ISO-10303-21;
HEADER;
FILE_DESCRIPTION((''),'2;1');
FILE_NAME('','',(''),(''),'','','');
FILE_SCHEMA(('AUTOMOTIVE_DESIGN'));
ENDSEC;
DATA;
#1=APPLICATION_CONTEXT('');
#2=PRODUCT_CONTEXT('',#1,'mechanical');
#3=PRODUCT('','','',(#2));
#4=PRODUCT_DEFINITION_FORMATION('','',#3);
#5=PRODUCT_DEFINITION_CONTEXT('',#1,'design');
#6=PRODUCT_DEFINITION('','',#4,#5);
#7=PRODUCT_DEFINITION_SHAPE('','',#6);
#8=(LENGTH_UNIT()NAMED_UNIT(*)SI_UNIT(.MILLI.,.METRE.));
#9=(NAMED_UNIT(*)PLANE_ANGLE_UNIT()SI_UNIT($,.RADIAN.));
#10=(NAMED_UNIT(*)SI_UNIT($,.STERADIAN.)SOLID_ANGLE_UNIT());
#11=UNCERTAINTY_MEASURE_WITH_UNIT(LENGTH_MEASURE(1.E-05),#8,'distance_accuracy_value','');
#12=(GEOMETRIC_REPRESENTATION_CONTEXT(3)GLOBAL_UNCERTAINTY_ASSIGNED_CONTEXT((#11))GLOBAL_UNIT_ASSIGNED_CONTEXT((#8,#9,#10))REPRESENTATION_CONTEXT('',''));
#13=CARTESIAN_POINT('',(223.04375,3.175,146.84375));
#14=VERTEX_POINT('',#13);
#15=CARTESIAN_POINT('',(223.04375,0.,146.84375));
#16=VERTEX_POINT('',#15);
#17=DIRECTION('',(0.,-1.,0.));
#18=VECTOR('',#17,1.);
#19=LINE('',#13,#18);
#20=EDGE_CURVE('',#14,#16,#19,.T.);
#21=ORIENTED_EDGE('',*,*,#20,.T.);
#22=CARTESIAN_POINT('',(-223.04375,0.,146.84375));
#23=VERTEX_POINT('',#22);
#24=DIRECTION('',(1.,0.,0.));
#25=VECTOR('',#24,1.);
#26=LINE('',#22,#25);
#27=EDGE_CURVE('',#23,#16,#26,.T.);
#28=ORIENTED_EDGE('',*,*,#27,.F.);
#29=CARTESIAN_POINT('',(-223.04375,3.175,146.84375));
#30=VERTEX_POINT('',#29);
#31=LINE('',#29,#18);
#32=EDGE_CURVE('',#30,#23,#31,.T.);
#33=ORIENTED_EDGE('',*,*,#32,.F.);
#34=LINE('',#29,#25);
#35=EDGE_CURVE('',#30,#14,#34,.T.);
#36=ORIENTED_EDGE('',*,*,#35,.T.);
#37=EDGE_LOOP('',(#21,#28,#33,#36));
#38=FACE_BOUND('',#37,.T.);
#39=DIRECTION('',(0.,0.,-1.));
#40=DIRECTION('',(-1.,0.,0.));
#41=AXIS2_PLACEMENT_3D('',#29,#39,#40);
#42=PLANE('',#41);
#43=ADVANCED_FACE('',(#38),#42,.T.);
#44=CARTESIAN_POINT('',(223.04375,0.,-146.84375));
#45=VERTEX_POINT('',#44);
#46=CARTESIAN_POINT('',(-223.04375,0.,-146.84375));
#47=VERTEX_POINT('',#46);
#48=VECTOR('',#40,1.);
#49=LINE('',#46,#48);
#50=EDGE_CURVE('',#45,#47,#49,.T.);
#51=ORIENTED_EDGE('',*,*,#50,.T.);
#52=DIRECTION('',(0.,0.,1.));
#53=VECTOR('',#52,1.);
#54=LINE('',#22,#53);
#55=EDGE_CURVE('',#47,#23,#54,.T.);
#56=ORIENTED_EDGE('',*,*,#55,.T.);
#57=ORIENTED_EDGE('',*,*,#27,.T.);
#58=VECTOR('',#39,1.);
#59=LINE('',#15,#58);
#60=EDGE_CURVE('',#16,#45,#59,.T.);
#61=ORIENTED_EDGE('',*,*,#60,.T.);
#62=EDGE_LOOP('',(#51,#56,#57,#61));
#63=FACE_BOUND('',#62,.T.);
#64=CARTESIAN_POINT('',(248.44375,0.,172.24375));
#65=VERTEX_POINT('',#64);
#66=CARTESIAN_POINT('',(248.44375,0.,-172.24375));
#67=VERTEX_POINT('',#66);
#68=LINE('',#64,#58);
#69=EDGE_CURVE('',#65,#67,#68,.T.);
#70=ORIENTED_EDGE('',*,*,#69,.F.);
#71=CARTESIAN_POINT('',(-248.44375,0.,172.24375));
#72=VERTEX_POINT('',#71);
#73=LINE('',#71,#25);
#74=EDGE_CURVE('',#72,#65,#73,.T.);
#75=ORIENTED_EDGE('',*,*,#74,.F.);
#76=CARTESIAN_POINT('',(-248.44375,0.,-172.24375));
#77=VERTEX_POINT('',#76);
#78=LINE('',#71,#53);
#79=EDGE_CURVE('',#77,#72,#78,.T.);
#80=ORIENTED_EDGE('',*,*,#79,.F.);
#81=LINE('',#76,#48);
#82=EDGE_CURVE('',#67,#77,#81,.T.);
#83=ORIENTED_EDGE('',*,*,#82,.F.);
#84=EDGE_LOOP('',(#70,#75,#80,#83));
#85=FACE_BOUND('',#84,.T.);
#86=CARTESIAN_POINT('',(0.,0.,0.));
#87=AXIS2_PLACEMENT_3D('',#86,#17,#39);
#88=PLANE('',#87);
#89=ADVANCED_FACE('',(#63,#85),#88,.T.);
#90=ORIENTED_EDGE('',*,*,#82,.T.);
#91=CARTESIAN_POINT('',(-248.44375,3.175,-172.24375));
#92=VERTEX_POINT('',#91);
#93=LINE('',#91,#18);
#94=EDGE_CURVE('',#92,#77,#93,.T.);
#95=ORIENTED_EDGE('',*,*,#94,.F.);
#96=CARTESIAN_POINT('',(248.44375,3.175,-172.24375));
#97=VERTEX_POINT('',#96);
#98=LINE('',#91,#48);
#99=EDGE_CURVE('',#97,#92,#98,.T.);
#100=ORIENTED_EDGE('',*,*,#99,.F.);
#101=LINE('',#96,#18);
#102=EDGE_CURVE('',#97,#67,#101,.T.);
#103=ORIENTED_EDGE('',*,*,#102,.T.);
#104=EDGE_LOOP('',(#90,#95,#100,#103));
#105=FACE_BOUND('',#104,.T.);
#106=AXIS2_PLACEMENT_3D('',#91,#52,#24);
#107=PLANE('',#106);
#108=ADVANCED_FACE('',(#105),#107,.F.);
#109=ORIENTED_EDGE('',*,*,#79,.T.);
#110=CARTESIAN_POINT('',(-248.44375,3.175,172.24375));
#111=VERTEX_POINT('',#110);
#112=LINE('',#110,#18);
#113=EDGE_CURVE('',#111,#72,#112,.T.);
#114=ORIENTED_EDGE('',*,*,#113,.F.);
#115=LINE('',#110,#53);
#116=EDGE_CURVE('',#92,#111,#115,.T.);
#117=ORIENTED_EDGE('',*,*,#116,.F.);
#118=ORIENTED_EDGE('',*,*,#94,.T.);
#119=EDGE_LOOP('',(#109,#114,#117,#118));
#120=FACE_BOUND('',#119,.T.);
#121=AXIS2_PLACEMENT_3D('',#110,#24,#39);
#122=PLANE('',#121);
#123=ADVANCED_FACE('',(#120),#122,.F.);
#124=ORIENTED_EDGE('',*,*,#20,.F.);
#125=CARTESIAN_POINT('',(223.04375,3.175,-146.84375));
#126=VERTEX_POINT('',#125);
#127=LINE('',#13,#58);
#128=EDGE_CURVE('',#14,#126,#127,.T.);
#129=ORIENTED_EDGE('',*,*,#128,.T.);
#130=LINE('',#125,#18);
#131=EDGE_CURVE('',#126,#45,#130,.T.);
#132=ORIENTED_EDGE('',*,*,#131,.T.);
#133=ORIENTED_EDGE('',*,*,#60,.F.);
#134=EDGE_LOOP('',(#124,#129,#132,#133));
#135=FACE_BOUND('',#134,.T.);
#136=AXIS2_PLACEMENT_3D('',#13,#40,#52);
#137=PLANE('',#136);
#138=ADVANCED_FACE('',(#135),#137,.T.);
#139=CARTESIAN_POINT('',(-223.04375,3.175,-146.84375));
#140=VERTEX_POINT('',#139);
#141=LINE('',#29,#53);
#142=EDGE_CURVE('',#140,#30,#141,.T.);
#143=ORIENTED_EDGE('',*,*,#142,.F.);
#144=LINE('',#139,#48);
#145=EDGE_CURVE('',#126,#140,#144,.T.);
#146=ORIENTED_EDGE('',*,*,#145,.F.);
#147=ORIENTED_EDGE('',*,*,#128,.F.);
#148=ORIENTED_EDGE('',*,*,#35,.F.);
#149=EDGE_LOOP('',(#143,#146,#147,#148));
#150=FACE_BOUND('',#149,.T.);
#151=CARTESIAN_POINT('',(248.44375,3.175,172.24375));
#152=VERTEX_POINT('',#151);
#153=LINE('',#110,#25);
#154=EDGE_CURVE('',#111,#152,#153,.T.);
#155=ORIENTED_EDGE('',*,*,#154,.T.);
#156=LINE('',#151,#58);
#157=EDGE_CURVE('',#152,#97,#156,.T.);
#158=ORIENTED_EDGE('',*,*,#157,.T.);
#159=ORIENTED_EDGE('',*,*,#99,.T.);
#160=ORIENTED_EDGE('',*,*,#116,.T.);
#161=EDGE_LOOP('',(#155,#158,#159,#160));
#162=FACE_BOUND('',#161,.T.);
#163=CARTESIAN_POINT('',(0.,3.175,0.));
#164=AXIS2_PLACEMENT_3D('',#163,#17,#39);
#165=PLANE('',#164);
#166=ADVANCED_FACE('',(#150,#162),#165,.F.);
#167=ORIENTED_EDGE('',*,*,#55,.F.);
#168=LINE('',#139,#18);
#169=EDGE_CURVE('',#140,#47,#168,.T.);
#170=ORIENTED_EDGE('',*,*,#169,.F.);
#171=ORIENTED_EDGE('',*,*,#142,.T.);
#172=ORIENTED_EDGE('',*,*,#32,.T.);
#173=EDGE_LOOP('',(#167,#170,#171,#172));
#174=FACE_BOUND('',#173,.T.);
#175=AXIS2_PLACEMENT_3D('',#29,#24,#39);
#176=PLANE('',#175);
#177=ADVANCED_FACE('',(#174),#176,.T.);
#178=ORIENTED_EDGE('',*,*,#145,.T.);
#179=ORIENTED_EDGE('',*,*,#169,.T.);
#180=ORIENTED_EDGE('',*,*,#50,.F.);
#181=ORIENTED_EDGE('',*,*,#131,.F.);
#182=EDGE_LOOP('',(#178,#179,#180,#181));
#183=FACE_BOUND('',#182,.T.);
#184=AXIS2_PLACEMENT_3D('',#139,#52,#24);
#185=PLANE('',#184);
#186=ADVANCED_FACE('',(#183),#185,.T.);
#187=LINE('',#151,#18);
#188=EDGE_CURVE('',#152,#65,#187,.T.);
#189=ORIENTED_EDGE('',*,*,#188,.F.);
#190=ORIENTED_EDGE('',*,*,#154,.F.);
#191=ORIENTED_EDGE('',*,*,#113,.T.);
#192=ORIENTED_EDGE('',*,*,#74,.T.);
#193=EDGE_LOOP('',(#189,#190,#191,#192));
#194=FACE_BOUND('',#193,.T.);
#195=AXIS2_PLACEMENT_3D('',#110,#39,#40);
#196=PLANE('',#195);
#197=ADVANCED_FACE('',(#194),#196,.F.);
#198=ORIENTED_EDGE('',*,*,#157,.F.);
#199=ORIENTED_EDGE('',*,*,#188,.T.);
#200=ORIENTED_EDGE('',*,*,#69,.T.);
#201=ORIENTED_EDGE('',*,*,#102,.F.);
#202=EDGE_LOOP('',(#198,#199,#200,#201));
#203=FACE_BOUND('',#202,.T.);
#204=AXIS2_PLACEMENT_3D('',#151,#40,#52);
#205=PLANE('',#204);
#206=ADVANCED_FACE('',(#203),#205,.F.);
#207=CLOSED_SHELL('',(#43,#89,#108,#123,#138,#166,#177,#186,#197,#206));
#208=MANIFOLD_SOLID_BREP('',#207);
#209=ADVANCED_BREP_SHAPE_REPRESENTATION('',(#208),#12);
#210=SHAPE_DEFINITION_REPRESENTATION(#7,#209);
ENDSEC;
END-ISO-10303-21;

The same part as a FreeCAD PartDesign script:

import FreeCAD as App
import Part
import Sketcher

V = App.Vector
Q = App.Units.Quantity


def add_polygon(sketch, points):
    """Adds a closed chain of lines whose ends are joined by coincident constraints."""
    first, n = sketch.GeometryCount, len(points)
    for a, b in zip(points, points[1:] + points[:1]):
        sketch.addGeometry(Part.LineSegment(App.Vector(*a, 0), App.Vector(*b, 0)), False)
    for i in range(n):
        sketch.addConstraint(Sketcher.Constraint("Coincident", first + i, 2, first + (i + 1) % n, 1))

doc = App.newDocument("Part")
body = doc.addObject("PartDesign::Body", "Body")

# Sketch on XZ plane
sketch1 = body.newObject("Sketcher::SketchObject", "Sketch")
sketch1.AttachmentSupport = (doc.getObject("XZ_Plane"), [""])
sketch1.MapMode = "FlatFace"
add_polygon(sketch1, [(-248, -172), (-248, 172), (248, 172), (248, -172)])  # lines 0-3
add_polygon(sketch1, [(223, 147), (-223, 147), (-223, -147), (223, -147)])  # lines 4-7
sketch1.addConstraint([
    Sketcher.Constraint("Vertical", 0),
    Sketcher.Constraint("Horizontal", 1),
    Sketcher.Constraint("Vertical", 2),
    Sketcher.Constraint("Horizontal", 3),
    Sketcher.Constraint("Horizontal", 4),
    Sketcher.Constraint("Vertical", 5),
    Sketcher.Constraint("Horizontal", 6),
    Sketcher.Constraint("Vertical", 7),
    Sketcher.Constraint("Symmetric", 0, 2, 2, 2, -1, 1),
    Sketcher.Constraint("Symmetric", 4, 2, 6, 2, -1, 1),
    Sketcher.Constraint("DistanceX", 0, 2, 4, 2, Q("1 in")),
    Sketcher.Constraint("DistanceY", 4, 2, 0, 2, Q("1 in")),
    Sketcher.Constraint("DistanceX", 1, 1, 1, 2, Q("19.5625 in")),
    Sketcher.Constraint("DistanceY", 0, 1, 0, 2, Q("13.5625 in")),
])
pad1 = body.newObject("PartDesign::Pad", "Pad")
pad1.Profile = sketch1
pad1.Length = Q("0.125 in")
pad1.Reversed = True

doc.recompute()
